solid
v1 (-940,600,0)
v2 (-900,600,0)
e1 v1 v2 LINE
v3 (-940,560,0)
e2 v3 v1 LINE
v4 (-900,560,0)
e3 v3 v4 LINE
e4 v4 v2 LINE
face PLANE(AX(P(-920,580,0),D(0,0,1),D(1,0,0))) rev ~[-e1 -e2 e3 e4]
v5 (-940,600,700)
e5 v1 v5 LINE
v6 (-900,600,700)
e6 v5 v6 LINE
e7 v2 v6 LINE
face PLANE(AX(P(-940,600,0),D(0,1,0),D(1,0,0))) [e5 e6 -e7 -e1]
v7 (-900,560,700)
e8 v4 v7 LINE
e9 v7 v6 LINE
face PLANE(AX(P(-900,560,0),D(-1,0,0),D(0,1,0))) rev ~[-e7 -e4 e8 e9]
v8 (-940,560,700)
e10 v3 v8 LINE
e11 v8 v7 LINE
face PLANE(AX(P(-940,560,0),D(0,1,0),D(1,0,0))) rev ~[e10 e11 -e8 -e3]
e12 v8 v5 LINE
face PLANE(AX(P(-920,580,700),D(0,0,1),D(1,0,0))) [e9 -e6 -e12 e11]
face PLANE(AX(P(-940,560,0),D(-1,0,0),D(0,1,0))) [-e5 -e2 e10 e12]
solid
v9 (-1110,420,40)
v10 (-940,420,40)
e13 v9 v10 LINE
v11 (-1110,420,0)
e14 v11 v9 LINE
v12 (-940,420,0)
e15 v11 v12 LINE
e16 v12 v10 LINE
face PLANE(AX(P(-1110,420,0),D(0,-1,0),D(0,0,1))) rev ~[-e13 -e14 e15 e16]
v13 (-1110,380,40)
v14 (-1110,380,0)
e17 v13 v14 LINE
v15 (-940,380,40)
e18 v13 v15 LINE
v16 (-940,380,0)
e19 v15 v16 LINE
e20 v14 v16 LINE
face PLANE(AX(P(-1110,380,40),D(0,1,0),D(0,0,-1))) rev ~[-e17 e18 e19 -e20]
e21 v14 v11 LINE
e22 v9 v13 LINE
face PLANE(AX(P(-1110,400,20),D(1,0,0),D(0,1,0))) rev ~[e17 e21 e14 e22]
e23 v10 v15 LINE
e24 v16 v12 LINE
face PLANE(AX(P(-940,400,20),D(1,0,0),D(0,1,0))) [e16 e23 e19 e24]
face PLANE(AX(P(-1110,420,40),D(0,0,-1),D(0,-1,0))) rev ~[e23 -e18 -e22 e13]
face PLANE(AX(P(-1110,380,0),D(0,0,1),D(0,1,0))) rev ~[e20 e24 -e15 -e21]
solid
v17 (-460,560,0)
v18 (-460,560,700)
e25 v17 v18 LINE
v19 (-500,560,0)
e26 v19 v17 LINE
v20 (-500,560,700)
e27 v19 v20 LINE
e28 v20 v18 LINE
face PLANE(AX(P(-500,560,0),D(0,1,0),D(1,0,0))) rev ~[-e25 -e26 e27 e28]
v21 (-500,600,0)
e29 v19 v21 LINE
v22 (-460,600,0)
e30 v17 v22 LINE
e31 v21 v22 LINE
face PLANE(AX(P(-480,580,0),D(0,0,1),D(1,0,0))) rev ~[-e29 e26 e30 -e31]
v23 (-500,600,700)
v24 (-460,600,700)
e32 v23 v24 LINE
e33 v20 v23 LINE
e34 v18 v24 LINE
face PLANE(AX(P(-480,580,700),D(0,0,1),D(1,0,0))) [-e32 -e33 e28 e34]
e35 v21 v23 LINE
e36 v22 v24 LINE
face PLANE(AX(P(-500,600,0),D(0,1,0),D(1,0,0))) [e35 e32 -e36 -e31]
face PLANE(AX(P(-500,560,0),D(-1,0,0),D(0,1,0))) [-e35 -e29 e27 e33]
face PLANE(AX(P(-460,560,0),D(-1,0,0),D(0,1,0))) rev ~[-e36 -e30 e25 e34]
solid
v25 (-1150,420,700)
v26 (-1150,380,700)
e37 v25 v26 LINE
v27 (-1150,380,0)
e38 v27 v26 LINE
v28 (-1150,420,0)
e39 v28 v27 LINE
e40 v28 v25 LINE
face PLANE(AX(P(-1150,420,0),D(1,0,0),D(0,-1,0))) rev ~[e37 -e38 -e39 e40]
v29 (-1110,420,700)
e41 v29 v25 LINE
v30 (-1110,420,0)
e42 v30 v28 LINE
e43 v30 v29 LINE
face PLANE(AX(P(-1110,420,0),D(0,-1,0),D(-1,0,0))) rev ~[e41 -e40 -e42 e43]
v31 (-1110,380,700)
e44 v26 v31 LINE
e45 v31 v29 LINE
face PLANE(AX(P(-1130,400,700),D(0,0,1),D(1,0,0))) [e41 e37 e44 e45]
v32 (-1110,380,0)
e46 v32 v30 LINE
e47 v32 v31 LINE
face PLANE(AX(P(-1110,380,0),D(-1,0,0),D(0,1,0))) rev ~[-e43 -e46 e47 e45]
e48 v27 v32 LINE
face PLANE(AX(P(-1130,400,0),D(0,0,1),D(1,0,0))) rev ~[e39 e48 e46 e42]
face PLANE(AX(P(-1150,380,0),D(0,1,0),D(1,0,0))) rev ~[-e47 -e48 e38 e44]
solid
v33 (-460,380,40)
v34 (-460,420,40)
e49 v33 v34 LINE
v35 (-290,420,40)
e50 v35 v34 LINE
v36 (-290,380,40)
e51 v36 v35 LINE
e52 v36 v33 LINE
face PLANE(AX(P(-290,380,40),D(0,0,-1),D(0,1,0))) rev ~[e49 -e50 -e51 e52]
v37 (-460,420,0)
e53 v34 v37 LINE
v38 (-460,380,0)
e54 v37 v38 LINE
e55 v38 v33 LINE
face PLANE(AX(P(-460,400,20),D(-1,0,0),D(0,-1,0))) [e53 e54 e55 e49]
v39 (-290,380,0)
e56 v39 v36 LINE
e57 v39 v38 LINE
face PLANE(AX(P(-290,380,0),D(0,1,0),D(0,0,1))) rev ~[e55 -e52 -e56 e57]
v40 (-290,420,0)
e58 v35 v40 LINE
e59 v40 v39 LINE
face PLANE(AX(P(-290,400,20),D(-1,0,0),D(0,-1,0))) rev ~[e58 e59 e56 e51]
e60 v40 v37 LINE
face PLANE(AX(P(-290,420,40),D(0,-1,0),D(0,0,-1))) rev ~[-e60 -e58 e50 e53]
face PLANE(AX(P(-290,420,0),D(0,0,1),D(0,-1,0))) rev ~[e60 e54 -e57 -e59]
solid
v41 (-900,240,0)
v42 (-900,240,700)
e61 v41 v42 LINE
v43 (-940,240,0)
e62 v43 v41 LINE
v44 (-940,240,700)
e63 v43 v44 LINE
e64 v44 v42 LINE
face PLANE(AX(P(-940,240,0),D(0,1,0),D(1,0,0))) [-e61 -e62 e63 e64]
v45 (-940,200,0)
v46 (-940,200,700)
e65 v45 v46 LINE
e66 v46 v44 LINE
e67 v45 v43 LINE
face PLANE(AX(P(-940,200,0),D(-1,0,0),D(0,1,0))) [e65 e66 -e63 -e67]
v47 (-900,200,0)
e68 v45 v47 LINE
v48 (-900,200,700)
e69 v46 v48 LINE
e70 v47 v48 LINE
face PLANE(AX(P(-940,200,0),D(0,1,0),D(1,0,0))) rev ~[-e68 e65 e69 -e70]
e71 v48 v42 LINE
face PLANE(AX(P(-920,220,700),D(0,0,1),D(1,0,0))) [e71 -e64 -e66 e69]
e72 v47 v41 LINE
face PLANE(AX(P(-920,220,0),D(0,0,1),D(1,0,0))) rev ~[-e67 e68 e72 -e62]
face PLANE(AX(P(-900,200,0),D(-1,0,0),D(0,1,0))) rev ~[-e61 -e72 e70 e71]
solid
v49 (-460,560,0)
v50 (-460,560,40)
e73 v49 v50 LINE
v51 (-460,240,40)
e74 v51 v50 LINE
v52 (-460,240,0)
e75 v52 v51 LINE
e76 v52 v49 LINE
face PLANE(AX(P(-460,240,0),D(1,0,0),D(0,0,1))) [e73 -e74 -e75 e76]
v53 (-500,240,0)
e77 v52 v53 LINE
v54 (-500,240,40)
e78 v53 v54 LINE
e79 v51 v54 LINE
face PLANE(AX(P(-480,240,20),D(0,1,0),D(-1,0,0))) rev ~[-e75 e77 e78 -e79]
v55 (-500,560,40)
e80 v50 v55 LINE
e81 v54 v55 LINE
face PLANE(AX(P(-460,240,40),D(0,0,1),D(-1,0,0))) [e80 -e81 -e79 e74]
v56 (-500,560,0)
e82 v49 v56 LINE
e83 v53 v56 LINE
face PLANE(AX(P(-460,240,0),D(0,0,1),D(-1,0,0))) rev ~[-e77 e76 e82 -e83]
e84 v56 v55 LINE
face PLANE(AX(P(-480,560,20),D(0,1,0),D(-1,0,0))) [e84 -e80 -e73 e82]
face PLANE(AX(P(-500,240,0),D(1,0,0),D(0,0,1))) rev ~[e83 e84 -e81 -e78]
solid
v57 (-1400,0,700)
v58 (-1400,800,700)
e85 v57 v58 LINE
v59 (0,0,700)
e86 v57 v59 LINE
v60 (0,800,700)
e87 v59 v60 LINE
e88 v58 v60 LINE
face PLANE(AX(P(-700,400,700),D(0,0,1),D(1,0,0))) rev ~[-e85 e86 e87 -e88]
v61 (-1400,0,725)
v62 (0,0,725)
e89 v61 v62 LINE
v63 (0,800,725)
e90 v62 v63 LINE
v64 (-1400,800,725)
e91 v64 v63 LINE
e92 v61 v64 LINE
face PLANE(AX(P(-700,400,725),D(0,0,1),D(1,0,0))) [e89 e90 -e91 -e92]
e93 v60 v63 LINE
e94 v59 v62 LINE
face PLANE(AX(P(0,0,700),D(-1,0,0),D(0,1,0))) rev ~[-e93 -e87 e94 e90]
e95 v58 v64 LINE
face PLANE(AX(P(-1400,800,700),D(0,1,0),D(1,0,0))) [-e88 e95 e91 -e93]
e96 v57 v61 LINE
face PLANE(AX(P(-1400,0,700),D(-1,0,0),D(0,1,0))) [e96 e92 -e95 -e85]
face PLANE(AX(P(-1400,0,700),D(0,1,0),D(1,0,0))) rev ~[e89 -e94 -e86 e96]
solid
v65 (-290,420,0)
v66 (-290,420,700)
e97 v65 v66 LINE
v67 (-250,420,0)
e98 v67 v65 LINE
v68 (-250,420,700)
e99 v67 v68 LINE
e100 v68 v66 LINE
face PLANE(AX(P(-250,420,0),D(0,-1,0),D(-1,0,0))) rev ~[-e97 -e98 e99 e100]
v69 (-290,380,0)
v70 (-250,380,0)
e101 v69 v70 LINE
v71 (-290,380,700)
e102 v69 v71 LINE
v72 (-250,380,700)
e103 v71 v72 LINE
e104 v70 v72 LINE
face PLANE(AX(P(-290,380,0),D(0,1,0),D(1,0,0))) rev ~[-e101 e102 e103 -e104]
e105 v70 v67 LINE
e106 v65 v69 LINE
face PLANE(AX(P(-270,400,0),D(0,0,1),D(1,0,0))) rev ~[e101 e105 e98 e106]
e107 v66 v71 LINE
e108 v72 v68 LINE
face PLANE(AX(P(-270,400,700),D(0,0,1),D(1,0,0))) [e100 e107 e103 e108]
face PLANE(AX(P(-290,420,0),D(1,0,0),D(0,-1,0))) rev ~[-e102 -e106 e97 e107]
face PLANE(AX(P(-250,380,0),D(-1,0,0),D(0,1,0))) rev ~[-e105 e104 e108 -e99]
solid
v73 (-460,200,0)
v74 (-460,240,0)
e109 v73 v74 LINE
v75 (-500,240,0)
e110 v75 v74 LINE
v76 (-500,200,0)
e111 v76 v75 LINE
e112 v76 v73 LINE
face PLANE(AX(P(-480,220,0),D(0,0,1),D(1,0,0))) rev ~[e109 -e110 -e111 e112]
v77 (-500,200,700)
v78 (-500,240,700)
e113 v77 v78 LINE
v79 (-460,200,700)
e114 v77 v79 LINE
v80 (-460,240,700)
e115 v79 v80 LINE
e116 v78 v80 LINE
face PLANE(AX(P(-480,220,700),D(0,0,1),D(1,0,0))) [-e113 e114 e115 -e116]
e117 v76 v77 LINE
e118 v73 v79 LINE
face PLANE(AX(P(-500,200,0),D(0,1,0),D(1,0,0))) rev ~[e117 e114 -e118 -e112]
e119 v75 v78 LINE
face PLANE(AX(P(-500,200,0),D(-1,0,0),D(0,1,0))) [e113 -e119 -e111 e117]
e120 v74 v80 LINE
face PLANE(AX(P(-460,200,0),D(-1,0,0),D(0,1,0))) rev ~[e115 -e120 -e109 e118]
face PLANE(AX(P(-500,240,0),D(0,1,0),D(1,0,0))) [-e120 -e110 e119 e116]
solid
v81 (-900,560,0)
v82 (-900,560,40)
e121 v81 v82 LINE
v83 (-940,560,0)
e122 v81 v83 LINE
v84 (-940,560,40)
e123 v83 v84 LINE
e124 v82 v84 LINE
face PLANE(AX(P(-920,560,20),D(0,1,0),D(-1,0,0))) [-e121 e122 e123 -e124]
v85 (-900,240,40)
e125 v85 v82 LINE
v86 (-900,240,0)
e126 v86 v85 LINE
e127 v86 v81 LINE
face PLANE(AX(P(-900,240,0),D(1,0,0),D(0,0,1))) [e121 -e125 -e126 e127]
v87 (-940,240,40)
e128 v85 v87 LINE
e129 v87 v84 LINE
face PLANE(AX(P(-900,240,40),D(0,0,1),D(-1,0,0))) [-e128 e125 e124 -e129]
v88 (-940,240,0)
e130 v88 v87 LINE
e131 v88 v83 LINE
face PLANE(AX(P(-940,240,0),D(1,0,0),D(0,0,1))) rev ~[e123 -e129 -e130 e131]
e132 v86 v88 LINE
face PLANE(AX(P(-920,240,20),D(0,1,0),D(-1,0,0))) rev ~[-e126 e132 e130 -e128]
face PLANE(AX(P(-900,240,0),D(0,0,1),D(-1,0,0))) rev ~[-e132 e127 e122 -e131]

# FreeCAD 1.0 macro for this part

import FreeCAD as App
import Part
import Sketcher
from FreeCAD import Vector


def add_polygon(sketch, points):
    """Adds a closed chain of lines whose ends are joined by coincident constraints."""
    first, n = sketch.GeometryCount, len(points)
    for a, b in zip(points, points[1:] + points[:1]):
        sketch.addGeometry(Part.LineSegment(App.Vector(*a, 0), App.Vector(*b, 0)), False)
    for i in range(n):
        sketch.addConstraint(Sketcher.Constraint("Coincident", first + i, 2, first + (i + 1) % n, 1))

doc = App.newDocument("Part")
params = doc.addObject("Spreadsheet::Sheet", "Params")
for row, (alias, value) in enumerate([
    ("sketch1_width", "40 mm"),
    ("pad1_length", "700 mm"),
    ("sketch2_width", "40 mm"),
    ("pad2_length", "700 mm"),
    ("sketch3_width", "40 mm"),
    ("pad3_length", "700 mm"),
    ("sketch4_width", "40 mm"),
    ("pad4_length", "700 mm"),
    ("sketch5_width", "40 mm"),
    ("pad5_length", "700 mm"),
    ("sketch6_width", "40 mm"),
    ("pad6_length", "700 mm"),
    ("sketch7_width", "40 mm"),
    ("pad7_length", "320 mm"),
    ("sketch8_width", "40 mm"),
    ("pad8_length", "320 mm"),
    ("sketch9_width", "40 mm"),
    ("pad9_length", "170 mm"),
    ("sketch10_width", "40 mm"),
    ("pad10_length", "170 mm"),
    ("sketch11_width", "1400 mm"),
    ("sketch11_height", "800 mm"),
    ("pad11_length", "25 mm"),
], start=1):
    params.set(f"A{row}", alias)
    params.set(f"B{row}", "=" + value)
    params.setAlias(f"B{row}", alias)

body = doc.addObject("PartDesign::Body", "Body")

sketch1 = body.newObject("Sketcher::SketchObject", "Sketch")
sketch1.AttachmentSupport = (doc.getObject("XY_Plane"), [""])
sketch1.MapMode = "FlatFace"
add_polygon(sketch1, [(-940, 600), (-940, 560), (-900, 560), (-900, 600)])
sketch1.addConstraint([
    Sketcher.Constraint("Vertical", 0),
    Sketcher.Constraint("Horizontal", 1),
    Sketcher.Constraint("Vertical", 2),
    Sketcher.Constraint("Horizontal", 3),
    Sketcher.Constraint("Equal", 3, 0),
    Sketcher.Constraint("DistanceX", 1, 1, 1, 2, 40.0),
    Sketcher.Constraint("DistanceX", 0, 2, -1, 1, 940.0),
    Sketcher.Constraint("DistanceY", -1, 1, 0, 2, 560.0),
])
sketch1.setExpression("Constraints[9]", "Params.sketch1_width")
pad1 = body.newObject("PartDesign::Pad", "Pad")
pad1.Profile = sketch1
pad1.setExpression("Length", "Params.pad1_length")
body2 = doc.addObject("PartDesign::Body", "Body001")

sketch2 = body2.newObject("Sketcher::SketchObject", "Sketch001")
sketch2.AttachmentSupport = (doc.getObject("XY_Plane001"), [""])
sketch2.MapMode = "FlatFace"
add_polygon(sketch2, [(-1150, 420), (-1150, 380), (-1110, 380), (-1110, 420)])
sketch2.addConstraint([
    Sketcher.Constraint("Vertical", 0),
    Sketcher.Constraint("Horizontal", 1),
    Sketcher.Constraint("Vertical", 2),
    Sketcher.Constraint("Horizontal", 3),
    Sketcher.Constraint("Equal", 3, 0),
    Sketcher.Constraint("DistanceX", 1, 1, 1, 2, 40.0),
    Sketcher.Constraint("DistanceX", 0, 2, -1, 1, 1150.0),
    Sketcher.Constraint("DistanceY", -1, 1, 0, 2, 380.0),
])
sketch2.setExpression("Constraints[9]", "Params.sketch2_width")
pad2 = body2.newObject("PartDesign::Pad", "Pad001")
pad2.Profile = sketch2
pad2.setExpression("Length", "Params.pad2_length")
body3 = doc.addObject("PartDesign::Body", "Body002")

sketch3 = body3.newObject("Sketcher::SketchObject", "Sketch002")
sketch3.AttachmentSupport = (doc.getObject("XY_Plane002"), [""])
sketch3.MapMode = "FlatFace"
add_polygon(sketch3, [(-940, 240), (-940, 200), (-900, 200), (-900, 240)])
sketch3.addConstraint([
    Sketcher.Constraint("Vertical", 0),
    Sketcher.Constraint("Horizontal", 1),
    Sketcher.Constraint("Vertical", 2),
    Sketcher.Constraint("Horizontal", 3),
    Sketcher.Constraint("Equal", 3, 0),
    Sketcher.Constraint("DistanceX", 1, 1, 1, 2, 40.0),
    Sketcher.Constraint("DistanceX", 0, 2, -1, 1, 940.0),
    Sketcher.Constraint("DistanceY", -1, 1, 0, 2, 200.0),
])
sketch3.setExpression("Constraints[9]", "Params.sketch3_width")
pad3 = body3.newObject("PartDesign::Pad", "Pad002")
pad3.Profile = sketch3
pad3.setExpression("Length", "Params.pad3_length")
body4 = doc.addObject("PartDesign::Body", "Body003")

sketch4 = body4.newObject("Sketcher::SketchObject", "Sketch003")
sketch4.AttachmentSupport = (doc.getObject("XY_Plane003"), [""])
sketch4.MapMode = "FlatFace"
add_polygon(sketch4, [(-250, 420), (-290, 420), (-290, 380), (-250, 380)])
sketch4.addConstraint([
    Sketcher.Constraint("Horizontal", 0),
    Sketcher.Constraint("Vertical", 1),
    Sketcher.Constraint("Horizontal", 2),
    Sketcher.Constraint("Vertical", 3),
    Sketcher.Constraint("Equal", 2, 1),
    Sketcher.Constraint("DistanceX", 0, 2, 0, 1, 40.0),
    Sketcher.Constraint("DistanceX", 0, 2, -1, 1, 290.0),
    Sketcher.Constraint("DistanceY", -1, 1, 0, 2, 420.0),
])
sketch4.setExpression("Constraints[9]", "Params.sketch4_width")
pad4 = body4.newObject("PartDesign::Pad", "Pad003")
pad4.Profile = sketch4
pad4.setExpression("Length", "Params.pad4_length")
body5 = doc.addObject("PartDesign::Body", "Body004")

sketch5 = body5.newObject("Sketcher::SketchObject", "Sketch004")
sketch5.AttachmentSupport = (doc.getObject("XY_Plane004"), [""])
sketch5.MapMode = "FlatFace"
add_polygon(sketch5, [(-500, 600), (-500, 560), (-460, 560), (-460, 600)])
sketch5.addConstraint([
    Sketcher.Constraint("Vertical", 0),
    Sketcher.Constraint("Horizontal", 1),
    Sketcher.Constraint("Vertical", 2),
    Sketcher.Constraint("Horizontal", 3),
    Sketcher.Constraint("Equal", 3, 0),
    Sketcher.Constraint("DistanceX", 1, 1, 1, 2, 40.0),
    Sketcher.Constraint("DistanceX", 0, 2, -1, 1, 500.0),
    Sketcher.Constraint("DistanceY", -1, 1, 0, 2, 560.0),
])
sketch5.setExpression("Constraints[9]", "Params.sketch5_width")
pad5 = body5.newObject("PartDesign::Pad", "Pad004")
pad5.Profile = sketch5
pad5.setExpression("Length", "Params.pad5_length")
body6 = doc.addObject("PartDesign::Body", "Body005")

sketch6 = body6.newObject("Sketcher::SketchObject", "Sketch005")
sketch6.AttachmentSupport = (doc.getObject("XY_Plane005"), [""])
sketch6.MapMode = "FlatFace"
add_polygon(sketch6, [(-500, 240), (-500, 200), (-460, 200), (-460, 240)])
sketch6.addConstraint([
    Sketcher.Constraint("Vertical", 0),
    Sketcher.Constraint("Horizontal", 1),
    Sketcher.Constraint("Vertical", 2),
    Sketcher.Constraint("Horizontal", 3),
    Sketcher.Constraint("Equal", 3, 0),
    Sketcher.Constraint("DistanceX", 1, 1, 1, 2, 40.0),
    Sketcher.Constraint("DistanceX", 0, 2, -1, 1, 500.0),
    Sketcher.Constraint("DistanceY", -1, 1, 0, 2, 200.0),
])
sketch6.setExpression("Constraints[9]", "Params.sketch6_width")
pad6 = body6.newObject("PartDesign::Pad", "Pad005")
pad6.Profile = sketch6
pad6.setExpression("Length", "Params.pad6_length")
body7 = doc.addObject("PartDesign::Body", "Body006")

sketch7 = body7.newObject("Sketcher::SketchObject", "Sketch006")
sketch7.AttachmentSupport = (doc.getObject("XZ_Plane006"), [""])
sketch7.MapMode = "FlatFace"
sketch7.AttachmentOffset = App.Placement(Vector(0, 0, -240), App.Rotation())
add_polygon(sketch7, [(-460, 40), (-460, 0), (-500, 0), (-500, 40)])
sketch7.addConstraint([
    Sketcher.Constraint("Vertical", 0),
    Sketcher.Constraint("Horizontal", 1),
    Sketcher.Constraint("Vertical", 2),
    Sketcher.Constraint("Horizontal", 3),
    Sketcher.Constraint("PointOnObject", 0, 2, -1),
    Sketcher.Constraint("Equal", 3, 0),
    Sketcher.Constraint("DistanceX", 1, 2, 1, 1, 40.0),
    Sketcher.Constraint("DistanceX", 0, 2, -1, 1, 460.0),
])
sketch7.setExpression("Constraints[10]", "Params.sketch7_width")
pad7 = body7.newObject("PartDesign::Pad", "Pad006")
pad7.Profile = sketch7
pad7.setExpression("Length", "Params.pad7_length")
pad7.Reversed = True
body8 = doc.addObject("PartDesign::Body", "Body007")

sketch8 = body8.newObject("Sketcher::SketchObject", "Sketch007")
sketch8.AttachmentSupport = (doc.getObject("XZ_Plane007"), [""])
sketch8.MapMode = "FlatFace"
sketch8.AttachmentOffset = App.Placement(Vector(0, 0, -240), App.Rotation())
add_polygon(sketch8, [(-900, 40), (-900, 0), (-940, 0), (-940, 40)])
sketch8.addConstraint([
    Sketcher.Constraint("Vertical", 0),
    Sketcher.Constraint("Horizontal", 1),
    Sketcher.Constraint("Vertical", 2),
    Sketcher.Constraint("Horizontal", 3),
    Sketcher.Constraint("PointOnObject", 0, 2, -1),
    Sketcher.Constraint("Equal", 3, 0),
    Sketcher.Constraint("DistanceX", 1, 2, 1, 1, 40.0),
    Sketcher.Constraint("DistanceX", 0, 2, -1, 1, 900.0),
])
sketch8.setExpression("Constraints[10]", "Params.sketch8_width")
pad8 = body8.newObject("PartDesign::Pad", "Pad007")
pad8.Profile = sketch8
pad8.setExpression("Length", "Params.pad8_length")
pad8.Reversed = True
body9 = doc.addObject("PartDesign::Body", "Body008")

sketch9 = body9.newObject("Sketcher::SketchObject", "Sketch008")
sketch9.AttachmentSupport = (doc.getObject("YZ_Plane008"), [""])
sketch9.MapMode = "FlatFace"
sketch9.AttachmentOffset = App.Placement(Vector(0, 0, -290), App.Rotation())
add_polygon(sketch9, [(420, 0), (380, 0), (380, 40), (420, 40)])
sketch9.addConstraint([
    Sketcher.Constraint("Horizontal", 0),
    Sketcher.Constraint("Vertical", 1),
    Sketcher.Constraint("Horizontal", 2),
    Sketcher.Constraint("Vertical", 3),
    Sketcher.Constraint("PointOnObject", 0, 2, -1),
    Sketcher.Constraint("Equal", 2, 1),
    Sketcher.Constraint("DistanceX", 0, 2, 0, 1, 40.0),
    Sketcher.Constraint("DistanceX", -1, 1, 0, 2, 380.0),
])
sketch9.setExpression("Constraints[10]", "Params.sketch9_width")
pad9 = body9.newObject("PartDesign::Pad", "Pad008")
pad9.Profile = sketch9
pad9.setExpression("Length", "Params.pad9_length")
pad9.Reversed = True
body10 = doc.addObject("PartDesign::Body", "Body009")

sketch10 = body10.newObject("Sketcher::SketchObject", "Sketch009")
sketch10.AttachmentSupport = (doc.getObject("YZ_Plane009"), [""])
sketch10.MapMode = "FlatFace"
sketch10.AttachmentOffset = App.Placement(Vector(0, 0, -1110), App.Rotation())
add_polygon(sketch10, [(380, 0), (420, 0), (420, 40), (380, 40)])
sketch10.addConstraint([
    Sketcher.Constraint("Horizontal", 0),
    Sketcher.Constraint("Vertical", 1),
    Sketcher.Constraint("Horizontal", 2),
    Sketcher.Constraint("Vertical", 3),
    Sketcher.Constraint("PointOnObject", 0, 2, -1),
    Sketcher.Constraint("Equal", 2, 1),
    Sketcher.Constraint("DistanceX", 0, 1, 0, 2, 40.0),
    Sketcher.Constraint("DistanceX", -1, 1, 0, 2, 420.0),
])
sketch10.setExpression("Constraints[10]", "Params.sketch10_width")
pad10 = body10.newObject("PartDesign::Pad", "Pad009")
pad10.Profile = sketch10
pad10.setExpression("Length", "Params.pad10_length")
body11 = doc.addObject("PartDesign::Body", "Body010")

sketch11 = body11.newObject("Sketcher::SketchObject", "Sketch010")
sketch11.AttachmentSupport = (doc.getObject("XY_Plane010"), [""])
sketch11.MapMode = "FlatFace"
sketch11.AttachmentOffset = App.Placement(Vector(0, 0, 700), App.Rotation())
add_polygon(sketch11, [(-1400, 800), (-1400, 0), (0, 0), (0, 800)])
sketch11.addConstraint([
    Sketcher.Constraint("Vertical", 0),
    Sketcher.Constraint("Horizontal", 1),
    Sketcher.Constraint("Vertical", 2),
    Sketcher.Constraint("Horizontal", 3),
    Sketcher.Constraint("Coincident", 1, 2, -1, 1),
    Sketcher.Constraint("DistanceX", 1, 1, 1, 2, 1400.0),
    Sketcher.Constraint("DistanceY", 0, 2, 0, 1, 800.0),
])
sketch11.setExpression("Constraints[9]", "Params.sketch11_width")
sketch11.setExpression("Constraints[10]", "Params.sketch11_height")
pad11 = body11.newObject("PartDesign::Pad", "Pad010")
pad11.Profile = sketch11
pad11.setExpression("Length", "Params.pad11_length")

doc.recompute()
